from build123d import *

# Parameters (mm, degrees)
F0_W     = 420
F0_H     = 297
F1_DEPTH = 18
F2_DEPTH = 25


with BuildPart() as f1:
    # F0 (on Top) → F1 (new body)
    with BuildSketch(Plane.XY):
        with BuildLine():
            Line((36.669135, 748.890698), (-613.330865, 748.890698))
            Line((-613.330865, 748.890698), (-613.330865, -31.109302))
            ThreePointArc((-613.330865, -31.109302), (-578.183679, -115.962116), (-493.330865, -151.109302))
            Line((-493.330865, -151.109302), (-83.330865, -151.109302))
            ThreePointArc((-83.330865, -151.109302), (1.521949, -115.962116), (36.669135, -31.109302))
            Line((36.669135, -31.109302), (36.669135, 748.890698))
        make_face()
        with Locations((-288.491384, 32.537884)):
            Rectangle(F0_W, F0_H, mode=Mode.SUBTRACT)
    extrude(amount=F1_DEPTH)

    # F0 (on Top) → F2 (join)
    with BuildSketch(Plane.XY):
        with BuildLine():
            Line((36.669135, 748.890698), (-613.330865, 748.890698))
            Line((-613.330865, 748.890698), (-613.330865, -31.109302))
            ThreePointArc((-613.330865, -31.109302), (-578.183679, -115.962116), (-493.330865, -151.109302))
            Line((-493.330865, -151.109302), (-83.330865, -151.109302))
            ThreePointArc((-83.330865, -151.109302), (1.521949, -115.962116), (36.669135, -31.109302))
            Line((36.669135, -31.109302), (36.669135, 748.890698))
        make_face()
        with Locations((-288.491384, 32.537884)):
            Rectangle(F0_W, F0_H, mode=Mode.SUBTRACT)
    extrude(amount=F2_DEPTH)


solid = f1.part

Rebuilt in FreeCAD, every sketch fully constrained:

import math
import FreeCAD as App
import Part
import Sketcher
Q = App.Units.Quantity


def add_polygon(sketch, points):
    """Adds a closed chain of lines whose ends are joined by coincident constraints."""
    first, n = sketch.GeometryCount, len(points)
    for a, b in zip(points, points[1:] + points[:1]):
        sketch.addGeometry(Part.LineSegment(App.Vector(*a, 0), App.Vector(*b, 0)), False)
    for i in range(n):
        sketch.addConstraint(Sketcher.Constraint("Coincident", first + i, 2, first + (i + 1) % n, 1))

doc = App.newDocument("Part")
body = doc.addObject("PartDesign::Body", "Body")

# Sketch on XY plane
sketch1 = body.newObject("Sketcher::SketchObject", "Sketch")
sketch1.AttachmentSupport = (doc.getObject("XY_Plane"), [""])
sketch1.MapMode = "FlatFace"
sketch1.addGeometry(Part.LineSegment(App.Vector(37, 749, 0), App.Vector(-613, 749, 0)), False)  # 0
sketch1.addGeometry(Part.LineSegment(App.Vector(-613, 749, 0), App.Vector(-613, -31, 0)), False)  # 1
sketch1.addGeometry(Part.ArcOfCircle(Part.Circle(App.Vector(-493, -31, 0), App.Vector(0, 0, 1), 120), math.radians(180), math.radians(270)), False)  # 2
sketch1.addGeometry(Part.LineSegment(App.Vector(-493, -151, 0), App.Vector(-83, -151, 0)), False)  # 3
sketch1.addGeometry(Part.ArcOfCircle(Part.Circle(App.Vector(-83, -31, 0), App.Vector(0, 0, 1), 120), math.radians(-90), math.radians(0)), False)  # 4
sketch1.addGeometry(Part.LineSegment(App.Vector(37, -31, 0), App.Vector(37, 749, 0)), False)  # 5
add_polygon(sketch1, [(-78, -116), (-498, -116), (-498, 181), (-78, 181)])  # lines 6-9
sketch1.addConstraint([
    Sketcher.Constraint("Coincident", 0, 2, 1, 1),
    Sketcher.Constraint("Tangent", 1, 2, 2, 1),
    Sketcher.Constraint("Tangent", 2, 2, 3, 1),
    Sketcher.Constraint("Tangent", 3, 2, 4, 1),
    Sketcher.Constraint("Tangent", 4, 2, 5, 1),
    Sketcher.Constraint("Coincident", 5, 2, 0, 1),
    Sketcher.Constraint("Horizontal", 0),
    Sketcher.Constraint("Vertical", 1),
    Sketcher.Constraint("Horizontal", 3),
    Sketcher.Constraint("Vertical", 5),
    Sketcher.Constraint("Horizontal", 6),
    Sketcher.Constraint("Vertical", 7),
    Sketcher.Constraint("Horizontal", 8),
    Sketcher.Constraint("Vertical", 9),
    Sketcher.Constraint("Equal", 2, 4),
    Sketcher.Constraint("Radius", 2, Q("119.999999 mm")),
    Sketcher.Constraint("DistanceX", 0, 2, 0, 1, Q("650 mm")),
    Sketcher.Constraint("DistanceX", 6, 2, 6, 1, Q("420 mm")),
    Sketcher.Constraint("DistanceY", 1, 2, 1, 1, Q("780 mm")),
    Sketcher.Constraint("DistanceY", 7, 1, 7, 2, Q("297 mm")),
    Sketcher.Constraint("DistanceY", -1, 1, 0, 2, Q("748.890698 mm")),
    Sketcher.Constraint("DistanceX", 6, 2, 2, 2, Q("5.160519 mm")),
    Sketcher.Constraint("DistanceX", 2, 3, -1, 1, Q("493.330866 mm")),
    Sketcher.Constraint("DistanceY", 6, 2, -1, 1, Q("115.962116 mm")),
])
pad1 = body.newObject("PartDesign::Pad", "Pad")
pad1.Profile = sketch1
pad1.Length = 18

# Sketch on XY plane
sketch2 = body.newObject("Sketcher::SketchObject", "Sketch001")
sketch2.AttachmentSupport = (doc.getObject("XY_Plane"), [""])
sketch2.MapMode = "FlatFace"
sketch2.addGeometry(Part.LineSegment(App.Vector(37, 749, 0), App.Vector(-613, 749, 0)), False)  # 0
sketch2.addGeometry(Part.LineSegment(App.Vector(-613, 749, 0), App.Vector(-613, -31, 0)), False)  # 1
sketch2.addGeometry(Part.ArcOfCircle(Part.Circle(App.Vector(-493, -31, 0), App.Vector(0, 0, 1), 120), math.radians(180), math.radians(270)), False)  # 2
sketch2.addGeometry(Part.LineSegment(App.Vector(-493, -151, 0), App.Vector(-83, -151, 0)), False)  # 3
sketch2.addGeometry(Part.ArcOfCircle(Part.Circle(App.Vector(-83, -31, 0), App.Vector(0, 0, 1), 120), math.radians(-90), math.radians(0)), False)  # 4
sketch2.addGeometry(Part.LineSegment(App.Vector(37, -31, 0), App.Vector(37, 749, 0)), False)  # 5
add_polygon(sketch2, [(-78, -116), (-498, -116), (-498, 181), (-78, 181)])  # lines 6-9
sketch2.addConstraint([
    Sketcher.Constraint("Coincident", 0, 2, 1, 1),
    Sketcher.Constraint("Tangent", 1, 2, 2, 1),
    Sketcher.Constraint("Tangent", 2, 2, 3, 1),
    Sketcher.Constraint("Tangent", 3, 2, 4, 1),
    Sketcher.Constraint("Tangent", 4, 2, 5, 1),
    Sketcher.Constraint("Coincident", 5, 2, 0, 1),
    Sketcher.Constraint("Horizontal", 0),
    Sketcher.Constraint("Vertical", 1),
    Sketcher.Constraint("Horizontal", 3),
    Sketcher.Constraint("Vertical", 5),
    Sketcher.Constraint("Horizontal", 6),
    Sketcher.Constraint("Vertical", 7),
    Sketcher.Constraint("Horizontal", 8),
    Sketcher.Constraint("Vertical", 9),
    Sketcher.Constraint("Equal", 2, 4),
    Sketcher.Constraint("Radius", 2, Q("119.999999 mm")),
    Sketcher.Constraint("DistanceX", 0, 2, 0, 1, Q("650 mm")),
    Sketcher.Constraint("DistanceX", 6, 2, 6, 1, Q("420 mm")),
    Sketcher.Constraint("DistanceY", 1, 2, 1, 1, Q("780 mm")),
    Sketcher.Constraint("DistanceY", 7, 1, 7, 2, Q("297 mm")),
    Sketcher.Constraint("DistanceY", -1, 1, 0, 2, Q("748.890698 mm")),
    Sketcher.Constraint("DistanceX", 6, 2, 2, 2, Q("5.160519 mm")),
    Sketcher.Constraint("DistanceX", 2, 3, -1, 1, Q("493.330866 mm")),
    Sketcher.Constraint("DistanceY", 6, 2, -1, 1, Q("115.962116 mm")),
])
pad2 = body.newObject("PartDesign::Pad", "Pad001")
pad2.Profile = sketch2
pad2.Length = 25

doc.recompute()
